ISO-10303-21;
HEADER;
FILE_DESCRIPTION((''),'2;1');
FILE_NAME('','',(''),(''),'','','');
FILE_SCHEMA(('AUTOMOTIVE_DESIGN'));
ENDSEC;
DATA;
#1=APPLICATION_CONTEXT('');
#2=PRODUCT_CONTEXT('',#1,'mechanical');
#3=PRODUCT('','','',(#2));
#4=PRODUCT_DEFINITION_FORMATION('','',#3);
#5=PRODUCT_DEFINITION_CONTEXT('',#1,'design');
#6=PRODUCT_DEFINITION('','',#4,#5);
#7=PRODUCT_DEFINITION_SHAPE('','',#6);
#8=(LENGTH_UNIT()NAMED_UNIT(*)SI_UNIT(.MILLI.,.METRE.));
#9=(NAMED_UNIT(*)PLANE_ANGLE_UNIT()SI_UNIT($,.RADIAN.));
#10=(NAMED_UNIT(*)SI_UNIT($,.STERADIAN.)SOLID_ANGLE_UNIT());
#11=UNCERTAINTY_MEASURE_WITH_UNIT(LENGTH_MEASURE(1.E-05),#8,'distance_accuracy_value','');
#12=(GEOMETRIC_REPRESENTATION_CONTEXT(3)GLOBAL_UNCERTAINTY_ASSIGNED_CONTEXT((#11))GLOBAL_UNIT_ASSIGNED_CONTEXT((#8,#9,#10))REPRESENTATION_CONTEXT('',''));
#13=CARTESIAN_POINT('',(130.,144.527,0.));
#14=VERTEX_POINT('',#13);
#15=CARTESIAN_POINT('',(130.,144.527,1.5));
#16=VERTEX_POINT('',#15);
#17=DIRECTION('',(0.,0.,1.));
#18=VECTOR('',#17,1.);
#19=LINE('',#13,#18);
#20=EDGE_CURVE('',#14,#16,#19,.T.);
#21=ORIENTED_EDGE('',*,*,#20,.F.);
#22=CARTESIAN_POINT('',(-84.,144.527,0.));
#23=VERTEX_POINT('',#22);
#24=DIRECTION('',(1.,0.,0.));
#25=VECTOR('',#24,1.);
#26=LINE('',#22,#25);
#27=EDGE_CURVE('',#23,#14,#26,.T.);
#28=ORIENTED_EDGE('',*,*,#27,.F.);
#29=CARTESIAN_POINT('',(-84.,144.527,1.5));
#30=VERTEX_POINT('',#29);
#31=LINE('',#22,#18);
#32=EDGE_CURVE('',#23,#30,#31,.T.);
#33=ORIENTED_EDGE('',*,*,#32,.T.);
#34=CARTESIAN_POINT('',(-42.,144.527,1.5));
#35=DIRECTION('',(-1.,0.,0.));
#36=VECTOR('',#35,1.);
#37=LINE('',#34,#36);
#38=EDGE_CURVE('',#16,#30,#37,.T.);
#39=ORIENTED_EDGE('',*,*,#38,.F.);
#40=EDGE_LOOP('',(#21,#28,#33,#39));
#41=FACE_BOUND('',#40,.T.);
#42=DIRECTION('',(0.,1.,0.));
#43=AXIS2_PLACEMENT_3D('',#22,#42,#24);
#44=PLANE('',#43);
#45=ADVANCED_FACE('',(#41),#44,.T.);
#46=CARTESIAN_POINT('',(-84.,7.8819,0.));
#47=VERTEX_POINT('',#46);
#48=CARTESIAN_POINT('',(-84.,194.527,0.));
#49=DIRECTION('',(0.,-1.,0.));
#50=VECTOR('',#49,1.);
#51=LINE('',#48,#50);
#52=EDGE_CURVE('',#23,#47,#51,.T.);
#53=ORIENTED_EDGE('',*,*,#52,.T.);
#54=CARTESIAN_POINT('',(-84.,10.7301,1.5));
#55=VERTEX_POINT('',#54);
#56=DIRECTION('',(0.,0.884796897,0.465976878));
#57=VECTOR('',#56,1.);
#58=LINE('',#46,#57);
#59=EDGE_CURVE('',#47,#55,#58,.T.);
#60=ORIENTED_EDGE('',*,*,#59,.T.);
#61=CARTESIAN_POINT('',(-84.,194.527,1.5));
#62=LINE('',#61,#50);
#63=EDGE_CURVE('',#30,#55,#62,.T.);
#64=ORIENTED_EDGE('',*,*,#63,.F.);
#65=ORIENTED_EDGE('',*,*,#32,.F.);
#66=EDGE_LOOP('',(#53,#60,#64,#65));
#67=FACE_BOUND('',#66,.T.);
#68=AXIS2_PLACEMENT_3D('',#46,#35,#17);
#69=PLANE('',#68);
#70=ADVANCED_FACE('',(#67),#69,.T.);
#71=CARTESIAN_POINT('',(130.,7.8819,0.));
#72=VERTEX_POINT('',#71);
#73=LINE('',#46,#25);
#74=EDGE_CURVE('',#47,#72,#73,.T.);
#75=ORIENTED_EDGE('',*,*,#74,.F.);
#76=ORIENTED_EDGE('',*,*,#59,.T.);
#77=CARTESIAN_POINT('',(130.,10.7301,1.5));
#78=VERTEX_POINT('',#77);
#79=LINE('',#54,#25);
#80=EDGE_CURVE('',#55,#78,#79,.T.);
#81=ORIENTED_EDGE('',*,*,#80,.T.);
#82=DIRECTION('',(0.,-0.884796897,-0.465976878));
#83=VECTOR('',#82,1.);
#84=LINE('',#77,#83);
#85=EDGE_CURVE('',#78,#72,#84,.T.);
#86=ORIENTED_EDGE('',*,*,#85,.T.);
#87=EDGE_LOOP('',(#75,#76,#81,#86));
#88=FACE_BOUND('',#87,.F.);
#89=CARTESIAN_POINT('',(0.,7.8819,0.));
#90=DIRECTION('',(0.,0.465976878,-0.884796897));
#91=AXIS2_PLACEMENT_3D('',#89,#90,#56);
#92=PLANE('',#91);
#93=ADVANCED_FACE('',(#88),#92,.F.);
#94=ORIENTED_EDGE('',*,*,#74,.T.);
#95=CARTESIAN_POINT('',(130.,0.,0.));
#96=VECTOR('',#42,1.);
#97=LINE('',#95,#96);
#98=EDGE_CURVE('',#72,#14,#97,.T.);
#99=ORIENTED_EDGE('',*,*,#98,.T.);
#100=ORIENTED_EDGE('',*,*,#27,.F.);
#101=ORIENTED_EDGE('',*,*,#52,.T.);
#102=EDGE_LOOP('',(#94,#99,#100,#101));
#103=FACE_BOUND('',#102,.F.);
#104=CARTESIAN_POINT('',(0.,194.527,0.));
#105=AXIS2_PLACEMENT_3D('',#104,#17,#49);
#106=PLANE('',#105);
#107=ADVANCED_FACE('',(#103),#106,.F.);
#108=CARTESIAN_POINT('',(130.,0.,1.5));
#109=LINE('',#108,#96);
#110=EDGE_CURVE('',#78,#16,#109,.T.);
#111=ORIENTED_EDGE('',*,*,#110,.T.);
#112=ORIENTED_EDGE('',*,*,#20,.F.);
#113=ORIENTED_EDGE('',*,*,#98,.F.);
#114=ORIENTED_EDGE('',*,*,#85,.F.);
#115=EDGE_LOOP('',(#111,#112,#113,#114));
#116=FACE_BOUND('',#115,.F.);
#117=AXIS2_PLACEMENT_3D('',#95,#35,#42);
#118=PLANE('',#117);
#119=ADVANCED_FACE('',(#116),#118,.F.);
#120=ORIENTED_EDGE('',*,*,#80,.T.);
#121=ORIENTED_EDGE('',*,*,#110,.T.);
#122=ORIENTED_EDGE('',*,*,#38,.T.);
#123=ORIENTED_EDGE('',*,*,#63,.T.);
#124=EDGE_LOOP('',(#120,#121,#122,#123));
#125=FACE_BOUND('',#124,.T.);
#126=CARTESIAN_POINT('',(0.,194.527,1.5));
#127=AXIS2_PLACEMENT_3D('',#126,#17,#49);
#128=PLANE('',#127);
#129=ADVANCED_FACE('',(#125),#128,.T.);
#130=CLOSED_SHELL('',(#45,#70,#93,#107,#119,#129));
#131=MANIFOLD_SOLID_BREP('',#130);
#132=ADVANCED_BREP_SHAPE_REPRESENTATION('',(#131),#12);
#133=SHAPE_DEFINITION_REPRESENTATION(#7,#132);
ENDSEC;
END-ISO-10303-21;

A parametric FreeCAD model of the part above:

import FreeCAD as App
import Part
import Sketcher
Q = App.Units.Quantity

doc = App.newDocument("Part")
body = doc.addObject("PartDesign::Body", "Body")

sketch1 = body.newObject("Sketcher::SketchObject", "Sketch")
sketch1.AttachmentSupport = (doc.getObject("XY_Plane"), [""])
sketch1.MapMode = "FlatFace"
sketch1.addGeometry(Part.LineSegment(App.Vector(0, 240, 0), App.Vector(0, 0, 0)), False)
sketch1.addGeometry(Part.LineSegment(App.Vector(0, 0, 0), App.Vector(130, 0, 0)), False)
sketch1.addGeometry(Part.LineSegment(App.Vector(130, 0, 0), App.Vector(130, 240, 0)), False)
sketch1.addGeometry(Part.LineSegment(App.Vector(130, 240, 0), App.Vector(0, 240, 0)), False)
sketch1.addConstraint(Sketcher.Constraint("Coincident", 0, 2, 1, 1))
sketch1.addConstraint(Sketcher.Constraint("Coincident", 1, 2, 2, 1))
sketch1.addConstraint(Sketcher.Constraint("Coincident", 2, 2, 3, 1))
sketch1.addConstraint(Sketcher.Constraint("Coincident", 3, 2, 0, 1))
sketch1.addConstraint(Sketcher.Constraint("Vertical", 0))
sketch1.addConstraint(Sketcher.Constraint("Horizontal", 1))
sketch1.addConstraint(Sketcher.Constraint("Vertical", 2))
sketch1.addConstraint(Sketcher.Constraint("Horizontal", 3))
sketch1.addConstraint(Sketcher.Constraint("Coincident", 0, 2, -1, 1))
sketch1.addConstraint(Sketcher.Constraint("DistanceX", 1, 1, 1, 2, 130.0))
sketch1.addConstraint(Sketcher.Constraint("DistanceY", 0, 2, 0, 1, 240.0))
pad1 = body.newObject("PartDesign::Pad", "Pad")
pad1.Profile = sketch1
pad1.Length = 1.5

sketch2 = body.newObject("Sketcher::SketchObject", "Sketch001")
sketch2.AttachmentSupport = (doc.getObject("YZ_Plane"), [""])
sketch2.MapMode = "FlatFace"
sketch2.AttachmentOffset = App.Placement(App.Vector(0, 0, 130), App.Rotation())
sketch2.addGeometry(Part.LineSegment(App.Vector(7.8819, 0, 0), App.Vector(10.7301, 1.5, 0)), False)
sketch2.addGeometry(Part.LineSegment(App.Vector(10.7301, 1.5, 0), App.Vector(0, 1.5, 0)), False)
sketch2.addGeometry(Part.LineSegment(App.Vector(0, 1.5, 0), App.Vector(0, 0, 0)), False)
sketch2.addGeometry(Part.LineSegment(App.Vector(0, 0, 0), App.Vector(7.8819, 0, 0)), False)
sketch2.addConstraint(Sketcher.Constraint("Coincident", 0, 2, 1, 1))
sketch2.addConstraint(Sketcher.Constraint("Coincident", 1, 2, 2, 1))
sketch2.addConstraint(Sketcher.Constraint("Coincident", 2, 2, 3, 1))
sketch2.addConstraint(Sketcher.Constraint("Coincident", 3, 2, 0, 1))
sketch2.addConstraint(Sketcher.Constraint("Horizontal", 1))
sketch2.addConstraint(Sketcher.Constraint("Vertical", 2))
sketch2.addConstraint(Sketcher.Constraint("Horizontal", 3))
sketch2.addConstraint(Sketcher.Constraint("Coincident", 2, 2, -1, 1))
sketch2.addConstraint(Sketcher.Constraint("DistanceY", 2, 2, 2, 1, 1.5))
sketch2.addConstraint(Sketcher.Constraint("DistanceX", 1, 2, 1, 1, 10.73))
sketch2.addConstraint(Sketcher.Constraint("DistanceX", 3, 1, 3, 2, 7.882))
pocket1 = body.newObject("PartDesign::Pocket", "Pocket")
pocket1.Profile = sketch2
pocket1.Type = "ThroughAll"

sketch3 = body.newObject("Sketcher::SketchObject", "Sketch002")
sketch3.AttachmentSupport = (doc.getObject("XY_Plane"), [""])
sketch3.MapMode = "FlatFace"
sketch3.addGeometry(Part.LineSegment(App.Vector(130, 240, 0), App.Vector(130, 194.527, 0)), False)
sketch3.addGeometry(Part.LineSegment(App.Vector(130, 194.527, 0), App.Vector(0, 194.527, 0)), False)
sketch3.addGeometry(Part.LineSegment(App.Vector(0, 194.527, 0), App.Vector(0, 240, 0)), False)
sketch3.addGeometry(Part.LineSegment(App.Vector(0, 240, 0), App.Vector(130, 240, 0)), False)
sketch3.addConstraint(Sketcher.Constraint("Coincident", 0, 2, 1, 1))
sketch3.addConstraint(Sketcher.Constraint("Coincident", 1, 2, 2, 1))
sketch3.addConstraint(Sketcher.Constraint("Coincident", 2, 2, 3, 1))
sketch3.addConstraint(Sketcher.Constraint("Coincident", 3, 2, 0, 1))
sketch3.addConstraint(Sketcher.Constraint("Vertical", 0))
sketch3.addConstraint(Sketcher.Constraint("Horizontal", 1))
sketch3.addConstraint(Sketcher.Constraint("Vertical", 2))
sketch3.addConstraint(Sketcher.Constraint("Horizontal", 3))
sketch3.addConstraint(Sketcher.Constraint("PointOnObject", 1, 2, -2))
sketch3.addConstraint(Sketcher.Constraint("DistanceX", 1, 2, 1, 1, 130.0))
sketch3.addConstraint(Sketcher.Constraint("DistanceY", -1, 1, 2, 2, 240.0))
sketch3.addConstraint(Sketcher.Constraint("DistanceY", 0, 2, 0, 1, 45.473))
pocket2 = body.newObject("PartDesign::Pocket", "Pocket001")
pocket2.Profile = sketch3
pocket2.Length = 10
pocket2.Reversed = True

sketch4 = body.newObject("Sketcher::SketchObject", "Sketch003")
sketch4.AttachmentSupport = (doc.getObject("YZ_Plane"), [""])
sketch4.MapMode = "FlatFace"
sketch4.addGeometry(Part.LineSegment(App.Vector(10.7301, 1.5, 0), App.Vector(194.527, 1.5, 0)), False)
sketch4.addGeometry(Part.LineSegment(App.Vector(194.527, 1.5, 0), App.Vector(194.527, 0, 0)), False)
sketch4.addGeometry(Part.LineSegment(App.Vector(194.527, 0, 0), App.Vector(7.8819, 0, 0)), False)
sketch4.addGeometry(Part.LineSegment(App.Vector(7.8819, 0, 0), App.Vector(10.7301, 1.5, 0)), False)
sketch4.addConstraint(Sketcher.Constraint("Coincident", 0, 2, 1, 1))
sketch4.addConstraint(Sketcher.Constraint("Coincident", 1, 2, 2, 1))
sketch4.addConstraint(Sketcher.Constraint("Coincident", 2, 2, 3, 1))
sketch4.addConstraint(Sketcher.Constraint("Coincident", 3, 2, 0, 1))
sketch4.addConstraint(Sketcher.Constraint("Horizontal", 0))
sketch4.addConstraint(Sketcher.Constraint("Vertical", 1))
sketch4.addConstraint(Sketcher.Constraint("Horizontal", 2))
sketch4.addConstraint(Sketcher.Constraint("PointOnObject", 1, 2, -1))
sketch4.addConstraint(Sketcher.Constraint("DistanceY", 1, 2, 1, 1, 1.5))
sketch4.addConstraint(Sketcher.Constraint("DistanceX", 0, 1, 0, 2, 183.797))
sketch4.addConstraint(Sketcher.Constraint("DistanceX", 2, 2, 2, 1, 186.645))
sketch4.addConstraint(Sketcher.Constraint("DistanceX", -1, 1, 3, 2, 10.73))
pad2 = body.newObject("PartDesign::Pad", "Pad001")
pad2.Profile = sketch4
pad2.Length = 84
pad2.Reversed = True

sketch5 = body.newObject("Sketcher::SketchObject", "Sketch004")
sketch5.AttachmentSupport = (doc.getObject("YZ_Plane"), [""])
sketch5.MapMode = "FlatFace"
sketch5.AttachmentOffset = App.Placement(App.Vector(0, 0, 130), App.Rotation())
sketch5.addGeometry(Part.LineSegment(App.Vector(202.27801, 0.420781, 0), App.Vector(158.673295, -23.126791, 0)), False)
sketch5.addGeometry(Part.LineSegment(App.Vector(158.6733, -23.1268, 0), App.Vector(168.8786, -42.0247, 0)), False)
sketch5.addGeometry(Part.LineSegment(App.Vector(168.8786, -42.0247, 0), App.Vector(212.4833, -18.4771, 0)), False)
sketch5.addGeometry(Part.LineSegment(App.Vector(212.4833, -18.4771, 0), App.Vector(202.278, 0.4208, 0)), False)
sketch5.addConstraint(Sketcher.Constraint("Coincident", 0, 2, 1, 1))
sketch5.addConstraint(Sketcher.Constraint("Coincident", 1, 2, 2, 1))
sketch5.addConstraint(Sketcher.Constraint("Coincident", 2, 2, 3, 1))
sketch5.addConstraint(Sketcher.Constraint("Coincident", 3, 2, 0, 1))
sketch5.addConstraint(Sketcher.Constraint("Perpendicular", 0, 1))
sketch5.addConstraint(Sketcher.Constraint("Perpendicular", 1, 2))
sketch5.addConstraint(Sketcher.Constraint("Perpendicular", 2, 3))
sketch5.addConstraint(Sketcher.Constraint("Angle", 0, Q("-151.63 deg")))
sketch5.addConstraint(Sketcher.Constraint("DistanceX", 0, 2, 2, 2, 53.81))
sketch5.addConstraint(Sketcher.Constraint("DistanceY", 2, 2, -1, 1, 18.477))
sketch5.addConstraint(Sketcher.Constraint("DistanceX", -1, 1, 3, 2, 202.278))
sketch5.addConstraint(Sketcher.Constraint("DistanceY", 1, 2, 0, 2, 18.898))
pocket3 = body.newObject("PartDesign::Pocket", "Pocket002")
pocket3.Profile = sketch5
pocket3.Type = "ThroughAll"

sketch6 = body.newObject("Sketcher::SketchObject", "Sketch005")
sketch6.AttachmentSupport = (doc.getObject("XY_Plane"), [""])
sketch6.MapMode = "FlatFace"
sketch6.addGeometry(Part.LineSegment(App.Vector(-84, 144.527, 0), App.Vector(-84, 194.527, 0)), False)
sketch6.addGeometry(Part.LineSegment(App.Vector(-84, 194.527, 0), App.Vector(130, 194.527, 0)), False)
sketch6.addGeometry(Part.LineSegment(App.Vector(130, 194.527, 0), App.Vector(130, 144.527, 0)), False)
sketch6.addGeometry(Part.LineSegment(App.Vector(130, 144.527, 0), App.Vector(-84, 144.527, 0)), False)
sketch6.addConstraint(Sketcher.Constraint("Coincident", 0, 2, 1, 1))
sketch6.addConstraint(Sketcher.Constraint("Coincident", 1, 2, 2, 1))
sketch6.addConstraint(Sketcher.Constraint("Coincident", 2, 2, 3, 1))
sketch6.addConstraint(Sketcher.Constraint("Coincident", 3, 2, 0, 1))
sketch6.addConstraint(Sketcher.Constraint("Vertical", 0))
sketch6.addConstraint(Sketcher.Constraint("Horizontal", 1))
sketch6.addConstraint(Sketcher.Constraint("Vertical", 2))
sketch6.addConstraint(Sketcher.Constraint("Horizontal", 3))
sketch6.addConstraint(Sketcher.Constraint("DistanceY", 0, 1, 0, 2, 50.0))
sketch6.addConstraint(Sketcher.Constraint("DistanceX", 1, 1, 1, 2, 214.0))
sketch6.addConstraint(Sketcher.Constraint("DistanceX", 0, 2, -1, 1, 84.0))
sketch6.addConstraint(Sketcher.Constraint("DistanceY", -1, 1, 0, 2, 194.527))
pocket4 = body.newObject("PartDesign::Pocket", "Pocket003")
pocket4.Profile = sketch6
pocket4.Length = 10
pocket4.Reversed = True

doc.recompute()
